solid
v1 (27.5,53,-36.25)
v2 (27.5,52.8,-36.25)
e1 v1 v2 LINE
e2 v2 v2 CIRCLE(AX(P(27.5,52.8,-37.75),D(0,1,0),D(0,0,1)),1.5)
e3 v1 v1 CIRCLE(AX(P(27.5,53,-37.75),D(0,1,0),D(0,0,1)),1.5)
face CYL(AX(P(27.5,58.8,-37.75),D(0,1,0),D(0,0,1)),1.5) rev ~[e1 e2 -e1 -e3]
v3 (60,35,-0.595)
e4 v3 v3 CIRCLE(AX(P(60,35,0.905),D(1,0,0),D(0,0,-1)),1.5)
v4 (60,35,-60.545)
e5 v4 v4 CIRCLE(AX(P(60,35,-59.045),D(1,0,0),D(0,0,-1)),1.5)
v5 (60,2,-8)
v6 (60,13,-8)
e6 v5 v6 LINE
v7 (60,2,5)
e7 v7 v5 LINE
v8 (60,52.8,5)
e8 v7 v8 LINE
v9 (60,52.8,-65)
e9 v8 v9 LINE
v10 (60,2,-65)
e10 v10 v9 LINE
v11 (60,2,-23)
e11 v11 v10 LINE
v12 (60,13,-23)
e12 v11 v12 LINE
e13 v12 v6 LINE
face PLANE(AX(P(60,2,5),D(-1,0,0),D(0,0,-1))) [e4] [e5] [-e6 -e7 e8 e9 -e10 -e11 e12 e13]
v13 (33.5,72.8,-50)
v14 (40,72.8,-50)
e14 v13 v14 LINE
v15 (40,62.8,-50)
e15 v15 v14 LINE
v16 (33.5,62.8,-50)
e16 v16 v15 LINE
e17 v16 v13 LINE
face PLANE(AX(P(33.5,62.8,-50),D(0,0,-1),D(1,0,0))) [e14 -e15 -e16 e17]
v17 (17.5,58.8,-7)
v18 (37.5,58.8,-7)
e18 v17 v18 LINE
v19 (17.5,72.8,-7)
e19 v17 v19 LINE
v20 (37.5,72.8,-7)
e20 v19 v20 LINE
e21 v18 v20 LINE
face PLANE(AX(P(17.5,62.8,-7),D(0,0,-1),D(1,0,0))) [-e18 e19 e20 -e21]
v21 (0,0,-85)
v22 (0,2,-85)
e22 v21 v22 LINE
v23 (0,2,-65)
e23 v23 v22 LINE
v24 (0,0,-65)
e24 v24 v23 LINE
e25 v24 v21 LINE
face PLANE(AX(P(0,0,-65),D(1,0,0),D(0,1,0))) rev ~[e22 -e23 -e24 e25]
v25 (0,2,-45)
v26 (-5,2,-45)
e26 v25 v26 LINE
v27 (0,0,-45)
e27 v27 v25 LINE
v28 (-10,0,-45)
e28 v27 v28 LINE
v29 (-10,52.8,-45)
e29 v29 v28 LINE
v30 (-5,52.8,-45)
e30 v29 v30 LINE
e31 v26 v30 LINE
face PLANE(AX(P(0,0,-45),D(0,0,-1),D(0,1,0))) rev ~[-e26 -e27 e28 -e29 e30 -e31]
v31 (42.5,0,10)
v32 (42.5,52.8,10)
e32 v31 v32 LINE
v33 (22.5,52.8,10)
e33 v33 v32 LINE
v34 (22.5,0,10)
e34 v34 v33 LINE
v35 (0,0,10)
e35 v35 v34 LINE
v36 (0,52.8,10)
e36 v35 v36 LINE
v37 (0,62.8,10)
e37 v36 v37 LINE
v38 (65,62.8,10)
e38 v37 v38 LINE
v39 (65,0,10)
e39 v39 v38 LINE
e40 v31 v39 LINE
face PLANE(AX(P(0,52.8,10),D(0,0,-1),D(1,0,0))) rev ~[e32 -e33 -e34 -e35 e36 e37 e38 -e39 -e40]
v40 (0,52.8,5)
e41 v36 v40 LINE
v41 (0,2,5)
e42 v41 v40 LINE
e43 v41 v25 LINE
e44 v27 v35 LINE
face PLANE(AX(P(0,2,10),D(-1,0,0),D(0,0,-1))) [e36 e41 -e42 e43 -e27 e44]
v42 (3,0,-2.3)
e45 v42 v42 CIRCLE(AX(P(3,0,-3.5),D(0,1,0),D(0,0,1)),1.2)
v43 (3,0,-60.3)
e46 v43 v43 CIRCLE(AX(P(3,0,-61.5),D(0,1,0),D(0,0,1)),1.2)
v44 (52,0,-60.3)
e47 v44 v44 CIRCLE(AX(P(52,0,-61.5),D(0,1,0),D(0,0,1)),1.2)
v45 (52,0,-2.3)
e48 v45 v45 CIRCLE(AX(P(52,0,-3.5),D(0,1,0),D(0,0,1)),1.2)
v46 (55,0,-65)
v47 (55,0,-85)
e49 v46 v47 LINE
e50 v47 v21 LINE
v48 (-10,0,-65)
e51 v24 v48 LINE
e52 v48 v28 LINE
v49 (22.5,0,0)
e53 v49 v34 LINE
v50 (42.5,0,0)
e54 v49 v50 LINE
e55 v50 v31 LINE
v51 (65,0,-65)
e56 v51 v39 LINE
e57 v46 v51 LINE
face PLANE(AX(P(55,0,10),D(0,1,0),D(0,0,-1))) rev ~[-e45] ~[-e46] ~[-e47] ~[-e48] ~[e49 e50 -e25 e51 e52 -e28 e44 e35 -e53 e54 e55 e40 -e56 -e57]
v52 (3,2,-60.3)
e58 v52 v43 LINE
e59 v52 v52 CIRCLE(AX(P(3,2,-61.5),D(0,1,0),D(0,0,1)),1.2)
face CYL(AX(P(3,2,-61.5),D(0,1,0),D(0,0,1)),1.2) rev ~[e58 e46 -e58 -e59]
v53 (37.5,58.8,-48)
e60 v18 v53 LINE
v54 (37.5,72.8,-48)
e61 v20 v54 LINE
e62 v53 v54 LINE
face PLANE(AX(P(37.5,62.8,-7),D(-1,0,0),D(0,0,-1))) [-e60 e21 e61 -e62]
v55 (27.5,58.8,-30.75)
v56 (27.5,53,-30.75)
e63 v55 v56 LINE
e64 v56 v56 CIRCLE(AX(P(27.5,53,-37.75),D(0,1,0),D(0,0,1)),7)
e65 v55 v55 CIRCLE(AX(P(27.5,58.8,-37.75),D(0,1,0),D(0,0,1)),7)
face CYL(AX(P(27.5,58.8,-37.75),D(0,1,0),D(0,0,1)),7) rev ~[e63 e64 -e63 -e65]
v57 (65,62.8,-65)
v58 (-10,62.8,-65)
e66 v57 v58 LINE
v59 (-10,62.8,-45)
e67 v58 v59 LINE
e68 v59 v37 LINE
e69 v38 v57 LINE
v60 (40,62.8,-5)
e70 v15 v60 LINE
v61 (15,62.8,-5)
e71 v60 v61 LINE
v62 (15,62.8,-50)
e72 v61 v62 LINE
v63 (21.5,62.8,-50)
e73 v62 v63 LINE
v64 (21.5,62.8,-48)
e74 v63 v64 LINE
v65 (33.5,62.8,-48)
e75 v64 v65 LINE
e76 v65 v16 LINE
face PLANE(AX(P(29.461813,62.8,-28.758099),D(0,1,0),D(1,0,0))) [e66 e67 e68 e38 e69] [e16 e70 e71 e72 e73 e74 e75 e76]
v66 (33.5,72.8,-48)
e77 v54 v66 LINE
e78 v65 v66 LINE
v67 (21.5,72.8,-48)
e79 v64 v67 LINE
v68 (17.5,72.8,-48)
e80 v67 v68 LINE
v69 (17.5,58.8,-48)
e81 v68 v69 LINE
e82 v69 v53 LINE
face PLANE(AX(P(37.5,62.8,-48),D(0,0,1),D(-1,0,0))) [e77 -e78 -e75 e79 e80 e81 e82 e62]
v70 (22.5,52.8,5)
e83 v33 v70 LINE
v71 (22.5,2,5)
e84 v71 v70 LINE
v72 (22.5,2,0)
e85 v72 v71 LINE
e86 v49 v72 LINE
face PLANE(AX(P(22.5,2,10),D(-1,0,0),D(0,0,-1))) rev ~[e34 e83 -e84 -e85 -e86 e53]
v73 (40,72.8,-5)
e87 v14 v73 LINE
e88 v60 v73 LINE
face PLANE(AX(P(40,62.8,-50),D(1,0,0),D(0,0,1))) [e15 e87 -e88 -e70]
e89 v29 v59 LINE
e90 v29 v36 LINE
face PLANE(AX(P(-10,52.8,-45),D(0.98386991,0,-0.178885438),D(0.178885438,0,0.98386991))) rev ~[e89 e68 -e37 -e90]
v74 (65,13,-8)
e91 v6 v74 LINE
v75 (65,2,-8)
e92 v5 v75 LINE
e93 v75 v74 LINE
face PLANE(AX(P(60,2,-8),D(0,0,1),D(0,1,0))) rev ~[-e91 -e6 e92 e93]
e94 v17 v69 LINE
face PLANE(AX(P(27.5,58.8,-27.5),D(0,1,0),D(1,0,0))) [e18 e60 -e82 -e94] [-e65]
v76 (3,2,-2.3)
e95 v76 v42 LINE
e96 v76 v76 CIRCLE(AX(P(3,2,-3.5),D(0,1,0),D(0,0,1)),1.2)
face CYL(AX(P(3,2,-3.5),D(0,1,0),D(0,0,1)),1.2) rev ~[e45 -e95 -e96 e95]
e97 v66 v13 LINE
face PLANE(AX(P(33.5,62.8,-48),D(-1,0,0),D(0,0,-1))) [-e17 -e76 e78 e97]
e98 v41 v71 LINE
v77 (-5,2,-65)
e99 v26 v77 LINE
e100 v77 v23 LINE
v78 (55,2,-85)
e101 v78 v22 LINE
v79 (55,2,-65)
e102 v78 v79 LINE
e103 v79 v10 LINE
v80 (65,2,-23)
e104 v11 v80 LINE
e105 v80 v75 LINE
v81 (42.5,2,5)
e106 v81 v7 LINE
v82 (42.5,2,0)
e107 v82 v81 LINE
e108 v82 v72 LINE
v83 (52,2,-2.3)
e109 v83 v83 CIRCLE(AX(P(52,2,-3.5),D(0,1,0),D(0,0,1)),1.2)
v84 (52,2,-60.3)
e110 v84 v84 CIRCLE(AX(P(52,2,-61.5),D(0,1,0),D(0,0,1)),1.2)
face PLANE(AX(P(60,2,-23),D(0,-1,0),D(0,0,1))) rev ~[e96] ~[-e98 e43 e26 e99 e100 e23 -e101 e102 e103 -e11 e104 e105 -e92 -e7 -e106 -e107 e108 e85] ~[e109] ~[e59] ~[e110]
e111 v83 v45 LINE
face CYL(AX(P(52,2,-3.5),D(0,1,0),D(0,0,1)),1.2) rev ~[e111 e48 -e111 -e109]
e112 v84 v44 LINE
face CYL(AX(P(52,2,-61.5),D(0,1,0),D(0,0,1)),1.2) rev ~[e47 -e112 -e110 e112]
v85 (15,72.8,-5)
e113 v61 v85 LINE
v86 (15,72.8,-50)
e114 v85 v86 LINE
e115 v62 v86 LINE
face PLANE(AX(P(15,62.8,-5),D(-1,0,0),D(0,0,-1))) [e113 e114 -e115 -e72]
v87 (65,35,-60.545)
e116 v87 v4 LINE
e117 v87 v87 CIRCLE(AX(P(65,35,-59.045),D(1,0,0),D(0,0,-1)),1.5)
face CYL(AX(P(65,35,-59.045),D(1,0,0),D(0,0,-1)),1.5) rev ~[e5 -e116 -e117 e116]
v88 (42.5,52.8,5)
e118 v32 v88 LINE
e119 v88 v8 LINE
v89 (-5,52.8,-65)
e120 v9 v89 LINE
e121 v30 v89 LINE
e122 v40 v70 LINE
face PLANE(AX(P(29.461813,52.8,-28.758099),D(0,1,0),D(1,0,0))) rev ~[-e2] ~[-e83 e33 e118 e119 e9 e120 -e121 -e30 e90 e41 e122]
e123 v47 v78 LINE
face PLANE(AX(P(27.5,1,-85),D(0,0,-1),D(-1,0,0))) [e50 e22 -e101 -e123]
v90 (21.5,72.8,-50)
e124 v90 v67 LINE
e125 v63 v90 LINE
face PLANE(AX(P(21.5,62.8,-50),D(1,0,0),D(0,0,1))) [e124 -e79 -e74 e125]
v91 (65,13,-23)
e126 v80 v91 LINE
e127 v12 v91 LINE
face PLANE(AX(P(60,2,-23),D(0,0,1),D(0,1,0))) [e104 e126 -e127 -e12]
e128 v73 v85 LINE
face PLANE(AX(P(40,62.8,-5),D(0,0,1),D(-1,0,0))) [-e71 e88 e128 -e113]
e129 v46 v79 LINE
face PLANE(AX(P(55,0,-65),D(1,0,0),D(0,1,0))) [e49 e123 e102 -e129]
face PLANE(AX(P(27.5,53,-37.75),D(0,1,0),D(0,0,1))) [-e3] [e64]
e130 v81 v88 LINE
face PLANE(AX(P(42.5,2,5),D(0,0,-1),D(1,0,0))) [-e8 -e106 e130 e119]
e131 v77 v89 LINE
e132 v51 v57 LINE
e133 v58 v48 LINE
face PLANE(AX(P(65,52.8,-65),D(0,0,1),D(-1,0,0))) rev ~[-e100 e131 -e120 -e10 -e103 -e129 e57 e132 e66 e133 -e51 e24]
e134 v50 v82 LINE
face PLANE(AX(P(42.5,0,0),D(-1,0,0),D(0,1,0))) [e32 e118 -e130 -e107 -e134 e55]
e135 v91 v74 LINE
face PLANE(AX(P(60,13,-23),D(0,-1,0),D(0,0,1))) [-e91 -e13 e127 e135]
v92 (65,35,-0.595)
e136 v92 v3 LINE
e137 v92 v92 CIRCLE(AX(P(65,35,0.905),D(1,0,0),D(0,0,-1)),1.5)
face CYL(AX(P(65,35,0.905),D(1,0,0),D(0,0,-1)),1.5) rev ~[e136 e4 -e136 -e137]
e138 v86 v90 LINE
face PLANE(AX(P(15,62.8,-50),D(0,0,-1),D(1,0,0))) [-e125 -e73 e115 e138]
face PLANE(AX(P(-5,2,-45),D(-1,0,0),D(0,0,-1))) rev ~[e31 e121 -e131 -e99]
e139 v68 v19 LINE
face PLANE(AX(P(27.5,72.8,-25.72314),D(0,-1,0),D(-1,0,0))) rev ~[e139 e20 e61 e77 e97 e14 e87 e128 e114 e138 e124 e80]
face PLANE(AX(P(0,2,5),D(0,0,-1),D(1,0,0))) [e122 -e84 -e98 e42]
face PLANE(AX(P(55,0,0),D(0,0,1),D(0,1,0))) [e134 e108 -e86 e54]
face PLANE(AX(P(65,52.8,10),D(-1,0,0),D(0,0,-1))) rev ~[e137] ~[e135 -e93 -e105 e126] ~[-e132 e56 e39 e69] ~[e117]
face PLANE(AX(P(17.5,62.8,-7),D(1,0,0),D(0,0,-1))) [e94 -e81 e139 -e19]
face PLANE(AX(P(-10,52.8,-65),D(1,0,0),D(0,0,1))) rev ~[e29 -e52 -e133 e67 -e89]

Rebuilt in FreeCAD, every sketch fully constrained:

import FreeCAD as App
import Part
import Sketcher

V = App.Vector

doc = App.newDocument("Part")
body = doc.addObject("PartDesign::Body", "Body")

# Sketch on XZ plane
sketch1 = body.newObject("Sketcher::SketchObject", "Sketch")
sketch1.AttachmentSupport = (doc.getObject("XZ_Plane"), [""])
sketch1.MapMode = "FlatFace"
sketch1.addGeometry(Part.LineSegment(V(0, -65, 0), V(0, 0, 0)), False)
sketch1.addGeometry(Part.LineSegment(V(0, 0, 0), V(55, 0, 0)), False)
sketch1.addGeometry(Part.LineSegment(V(55, 0, 0), V(55, -65, 0)), False)
sketch1.addGeometry(Part.LineSegment(V(55, -65, 0), V(0, -65, 0)), False)
sketch1.addConstraint(Sketcher.Constraint("Coincident", 0, 2, 1, 1))
sketch1.addConstraint(Sketcher.Constraint("Coincident", 1, 2, 2, 1))
sketch1.addConstraint(Sketcher.Constraint("Coincident", 2, 2, 3, 1))
sketch1.addConstraint(Sketcher.Constraint("Coincident", 3, 2, 0, 1))
sketch1.addConstraint(Sketcher.Constraint("Vertical", 0))
sketch1.addConstraint(Sketcher.Constraint("Horizontal", 1))
sketch1.addConstraint(Sketcher.Constraint("Vertical", 2))
sketch1.addConstraint(Sketcher.Constraint("Horizontal", 3))
sketch1.addConstraint(Sketcher.Constraint("Coincident", 0, 2, -1, 1))
sketch1.addConstraint(Sketcher.Constraint("DistanceX", 1, 1, 1, 2, 55.0))
sketch1.addConstraint(Sketcher.Constraint("DistanceY", 0, 1, 0, 2, 65.0))
pad1 = body.newObject("PartDesign::Pad", "Pad")
pad1.Profile = sketch1
pad1.Length = 2
pad1.Reversed = True

# Sketch on XZ plane
sketch2 = body.newObject("Sketcher::SketchObject", "Sketch001")
sketch2.AttachmentSupport = (doc.getObject("XZ_Plane"), [""])
sketch2.MapMode = "FlatFace"
sketch2.AttachmentOffset = App.Placement(V(0, 0, -2), App.Rotation())
sketch2.addGeometry(Part.Circle(V(3, -3.5, 0), V(0, 0, 1), 1.2), False)
sketch2.addGeometry(Part.Circle(V(52, -3.5, 0), V(0, 0, 1), 1.2), False)
sketch2.addGeometry(Part.Circle(V(3, -61.5, 0), V(0, 0, 1), 1.2), False)
sketch2.addGeometry(Part.Circle(V(52, -61.5, 0), V(0, 0, 1), 1.2), False)
sketch2.addConstraint(Sketcher.Constraint("Equal", 0, 1))
sketch2.addConstraint(Sketcher.Constraint("Equal", 1, 2))
sketch2.addConstraint(Sketcher.Constraint("Equal", 2, 3))
sketch2.addConstraint(Sketcher.Constraint("Horizontal", 0, 3, 1, 3))
sketch2.addConstraint(Sketcher.Constraint("Horizontal", 2, 3, 3, 3))
sketch2.addConstraint(Sketcher.Constraint("Vertical", 0, 3, 2, 3))
sketch2.addConstraint(Sketcher.Constraint("Vertical", 1, 3, 3, 3))
sketch2.addConstraint(Sketcher.Constraint("Diameter", 0, 2.4))
sketch2.addConstraint(Sketcher.Constraint("DistanceX", -1, 1, 0, 3, 3.0))
sketch2.addConstraint(Sketcher.Constraint("DistanceX", -1, 1, 1, 3, 52.0))
sketch2.addConstraint(Sketcher.Constraint("DistanceY", 2, 3, 0, 3, 58.0))
sketch2.addConstraint(Sketcher.Constraint("DistanceY", 0, 3, -1, 1, 3.5))
pocket1 = body.newObject("PartDesign::Pocket", "Pocket")
pocket1.Profile = sketch2
pocket1.Length = 2
pocket1.Reversed = True

# Sketch on YZ plane
sketch3 = body.newObject("Sketcher::SketchObject", "Sketch002")
sketch3.AttachmentSupport = (doc.getObject("YZ_Plane"), [""])
sketch3.MapMode = "FlatFace"
sketch3.addGeometry(Part.LineSegment(V(2, -65, 0), V(0, -65, 0)), False)
sketch3.addGeometry(Part.LineSegment(V(0, -65, 0), V(0, -45, 0)), False)
sketch3.addGeometry(Part.LineSegment(V(0, -45, 0), V(2, -45, 0)), False)
sketch3.addGeometry(Part.LineSegment(V(2, -45, 0), V(2, -65, 0)), False)
sketch3.addConstraint(Sketcher.Constraint("Coincident", 0, 2, 1, 1))
sketch3.addConstraint(Sketcher.Constraint("Coincident", 1, 2, 2, 1))
sketch3.addConstraint(Sketcher.Constraint("Coincident", 2, 2, 3, 1))
sketch3.addConstraint(Sketcher.Constraint("Coincident", 3, 2, 0, 1))
sketch3.addConstraint(Sketcher.Constraint("Horizontal", 0))
sketch3.addConstraint(Sketcher.Constraint("Vertical", 1))
sketch3.addConstraint(Sketcher.Constraint("Horizontal", 2))
sketch3.addConstraint(Sketcher.Constraint("Vertical", 3))
sketch3.addConstraint(Sketcher.Constraint("PointOnObject", 0, 2, -2))
sketch3.addConstraint(Sketcher.Constraint("DistanceX", 0, 2, 0, 1, 2.0))
sketch3.addConstraint(Sketcher.Constraint("DistanceY", 1, 1, 1, 2, 20.0))
sketch3.addConstraint(Sketcher.Constraint("DistanceY", 0, 2, -1, 1, 65.0))
pad2 = body.newObject("PartDesign::Pad", "Pad001")
pad2.Profile = sketch3
pad2.Length = 10
pad2.Reversed = True

# Sketch on XY plane
sketch4 = body.newObject("Sketcher::SketchObject", "Sketch003")
sketch4.AttachmentSupport = (doc.getObject("XY_Plane"), [""])
sketch4.MapMode = "FlatFace"
sketch4.AttachmentOffset = App.Placement(V(0, 0, -65), App.Rotation())
sketch4.addGeometry(Part.LineSegment(V(55, 2, 0), V(55, 0, 0)), False)
sketch4.addGeometry(Part.LineSegment(V(55, 0, 0), V(0, 0, 0)), False)
sketch4.addGeometry(Part.LineSegment(V(0, 0, 0), V(0, 2, 0)), False)
sketch4.addGeometry(Part.LineSegment(V(0, 2, 0), V(55, 2, 0)), False)
sketch4.addConstraint(Sketcher.Constraint("Coincident", 0, 2, 1, 1))
sketch4.addConstraint(Sketcher.Constraint("Coincident", 1, 2, 2, 1))
sketch4.addConstraint(Sketcher.Constraint("Coincident", 2, 2, 3, 1))
sketch4.addConstraint(Sketcher.Constraint("Coincident", 3, 2, 0, 1))
sketch4.addConstraint(Sketcher.Constraint("Vertical", 0))
sketch4.addConstraint(Sketcher.Constraint("Horizontal", 1))
sketch4.addConstraint(Sketcher.Constraint("Vertical", 2))
sketch4.addConstraint(Sketcher.Constraint("Horizontal", 3))
sketch4.addConstraint(Sketcher.Constraint("Coincident", 1, 2, -1, 1))
sketch4.addConstraint(Sketcher.Constraint("DistanceX", 1, 2, 1, 1, 55.0))
sketch4.addConstraint(Sketcher.Constraint("DistanceY", 0, 2, 0, 1, 2.0))
pad3 = body.newObject("PartDesign::Pad", "Pad002")
pad3.Profile = sketch4
pad3.Length = 20
pad3.Reversed = True

# Sketch on YZ plane
sketch5 = body.newObject("Sketcher::SketchObject", "Sketch004")
sketch5.AttachmentSupport = (doc.getObject("YZ_Plane"), [""])
sketch5.MapMode = "FlatFace"
sketch5.AttachmentOffset = App.Placement(V(0, 0, 55), App.Rotation())
sketch5.addGeometry(Part.LineSegment(V(2, 0, 0), V(0, 0, 0)), False)
sketch5.addGeometry(Part.LineSegment(V(0, 0, 0), V(0, -65, 0)), False)
sketch5.addGeometry(Part.LineSegment(V(0, -65, 0), V(2, -65, 0)), False)
sketch5.addGeometry(Part.LineSegment(V(2, -65, 0), V(2, 0, 0)), False)
sketch5.addConstraint(Sketcher.Constraint("Coincident", 0, 2, 1, 1))
sketch5.addConstraint(Sketcher.Constraint("Coincident", 1, 2, 2, 1))
sketch5.addConstraint(Sketcher.Constraint("Coincident", 2, 2, 3, 1))
sketch5.addConstraint(Sketcher.Constraint("Coincident", 3, 2, 0, 1))
sketch5.addConstraint(Sketcher.Constraint("Horizontal", 0))
sketch5.addConstraint(Sketcher.Constraint("Vertical", 1))
sketch5.addConstraint(Sketcher.Constraint("Horizontal", 2))
sketch5.addConstraint(Sketcher.Constraint("Vertical", 3))
sketch5.addConstraint(Sketcher.Constraint("Coincident", 0, 2, -1, 1))
sketch5.addConstraint(Sketcher.Constraint("DistanceX", 0, 2, 0, 1, 2.0))
sketch5.addConstraint(Sketcher.Constraint("DistanceY", 1, 2, 1, 1, 65.0))
pad4 = body.newObject("PartDesign::Pad", "Pad003")
pad4.Profile = sketch5
pad4.Length = 10

# Sketch on XY plane
sketch6 = body.newObject("Sketcher::SketchObject", "Sketch005")
sketch6.AttachmentSupport = (doc.getObject("XY_Plane"), [""])
sketch6.MapMode = "FlatFace"
sketch6.addGeometry(Part.LineSegment(V(0, 2, 0), V(0, 0, 0)), False)
sketch6.addGeometry(Part.LineSegment(V(0, 0, 0), V(22.5, 0, 0)), False)
sketch6.addGeometry(Part.LineSegment(V(22.5, 0, 0), V(22.5, 2, 0)), False)
sketch6.addGeometry(Part.LineSegment(V(22.5, 2, 0), V(0, 2, 0)), False)
sketch6.addGeometry(Part.LineSegment(V(42.5, 2, 0), V(42.5, 0, 0)), False)
sketch6.addGeometry(Part.LineSegment(V(42.5, 0, 0), V(55, 0, 0)), False)
sketch6.addGeometry(Part.LineSegment(V(55, 0, 0), V(55, 2, 0)), False)
sketch6.addGeometry(Part.LineSegment(V(55, 2, 0), V(42.5, 2, 0)), False)
sketch6.addConstraint(Sketcher.Constraint("Coincident", 0, 2, 1, 1))
sketch6.addConstraint(Sketcher.Constraint("Coincident", 1, 2, 2, 1))
sketch6.addConstraint(Sketcher.Constraint("Coincident", 2, 2, 3, 1))
sketch6.addConstraint(Sketcher.Constraint("Coincident", 3, 2, 0, 1))
sketch6.addConstraint(Sketcher.Constraint("Coincident", 4, 2, 5, 1))
sketch6.addConstraint(Sketcher.Constraint("Coincident", 5, 2, 6, 1))
sketch6.addConstraint(Sketcher.Constraint("Coincident", 6, 2, 7, 1))
sketch6.addConstraint(Sketcher.Constraint("Coincident", 7, 2, 4, 1))
sketch6.addConstraint(Sketcher.Constraint("Vertical", 0))
sketch6.addConstraint(Sketcher.Constraint("Horizontal", 1))
sketch6.addConstraint(Sketcher.Constraint("Vertical", 2))
sketch6.addConstraint(Sketcher.Constraint("Horizontal", 3))
sketch6.addConstraint(Sketcher.Constraint("Vertical", 4))
sketch6.addConstraint(Sketcher.Constraint("Horizontal", 5))
sketch6.addConstraint(Sketcher.Constraint("Vertical", 6))
sketch6.addConstraint(Sketcher.Constraint("Horizontal", 7))
sketch6.addConstraint(Sketcher.Constraint("Coincident", 0, 2, -1, 1))
sketch6.addConstraint(Sketcher.Constraint("PointOnObject", 4, 2, -1))
sketch6.addConstraint(Sketcher.Constraint("Horizontal", 3, 2, 6, 2))
sketch6.addConstraint(Sketcher.Constraint("DistanceY", 0, 2, 0, 1, 2.0))
sketch6.addConstraint(Sketcher.Constraint("DistanceX", 1, 1, 1, 2, 22.5))
sketch6.addConstraint(Sketcher.Constraint("DistanceX", 5, 1, 5, 2, 12.5))
sketch6.addConstraint(Sketcher.Constraint("DistanceX", -1, 1, 5, 2, 55.0))
pad5 = body.newObject("PartDesign::Pad", "Pad004")
pad5.Profile = sketch6
pad5.Length = 10

# Sketch on YZ plane
sketch7 = body.newObject("Sketcher::SketchObject", "Sketch006")
sketch7.AttachmentSupport = (doc.getObject("YZ_Plane"), [""])
sketch7.MapMode = "FlatFace"
sketch7.AttachmentOffset = App.Placement(V(0, 0, 55), App.Rotation())
sketch7.addGeometry(Part.LineSegment(V(2, 10, 0), V(0, 10, 0)), False)
sketch7.addGeometry(Part.LineSegment(V(0, 10, 0), V(0, 0, 0)), False)
sketch7.addGeometry(Part.LineSegment(V(0, 0, 0), V(2, 0, 0)), False)
sketch7.addGeometry(Part.LineSegment(V(2, 0, 0), V(2, 10, 0)), False)
sketch7.addConstraint(Sketcher.Constraint("Coincident", 0, 2, 1, 1))
sketch7.addConstraint(Sketcher.Constraint("Coincident", 1, 2, 2, 1))
sketch7.addConstraint(Sketcher.Constraint("Coincident", 2, 2, 3, 1))
sketch7.addConstraint(Sketcher.Constraint("Coincident", 3, 2, 0, 1))
sketch7.addConstraint(Sketcher.Constraint("Horizontal", 0))
sketch7.addConstraint(Sketcher.Constraint("Vertical", 1))
sketch7.addConstraint(Sketcher.Constraint("Horizontal", 2))
sketch7.addConstraint(Sketcher.Constraint("Vertical", 3))
sketch7.addConstraint(Sketcher.Constraint("Coincident", 1, 2, -1, 1))
sketch7.addConstraint(Sketcher.Constraint("DistanceX", 0, 2, 0, 1, 2.0))
sketch7.addConstraint(Sketcher.Constraint("DistanceY", 1, 2, 1, 1, 10.0))
pad6 = body.newObject("PartDesign::Pad", "Pad005")
pad6.Profile = sketch7
pad6.Length = 10

# Sketch on XZ plane
sketch8 = body.newObject("Sketcher::SketchObject", "Sketch007")
sketch8.AttachmentSupport = (doc.getObject("XZ_Plane"), [""])
sketch8.MapMode = "FlatFace"
sketch8.AttachmentOffset = App.Placement(V(0, 0, -2), App.Rotation())
sketch8.addGeometry(Part.LineSegment(V(0, 5, 0), V(0, 10, 0)), False)
sketch8.addGeometry(Part.LineSegment(V(0, 10, 0), V(22, 10, 0)), False)
sketch8.addGeometry(Part.LineSegment(V(22, 10, 0), V(22, 5, 0)), False)
sketch8.addGeometry(Part.LineSegment(V(22, 5, 0), V(0, 5, 0)), False)
sketch8.addGeometry(Part.LineSegment(V(-10, -65, 0), V(-10, -45, 0)), False)
sketch8.addGeometry(Part.LineSegment(V(-10, -45, 0), V(-5, -45, 0)), False)
sketch8.addGeometry(Part.LineSegment(V(-5, -45, 0), V(-5, -65, 0)), False)
sketch8.addGeometry(Part.LineSegment(V(-5, -65, 0), V(-10, -65, 0)), False)
sketch8.addGeometry(Part.LineSegment(V(65, -65, 0), V(60, -65, 0)), False)
sketch8.addGeometry(Part.LineSegment(V(60, -65, 0), V(60, 5, 0)), False)
sketch8.addGeometry(Part.LineSegment(V(60, 5, 0), V(42, 5, 0)), False)
sketch8.addGeometry(Part.LineSegment(V(42, 5, 0), V(42, 10, 0)), False)
sketch8.addGeometry(Part.LineSegment(V(42, 10, 0), V(65, 10, 0)), False)
sketch8.addGeometry(Part.LineSegment(V(65, 10, 0), V(65, -65, 0)), False)
sketch8.addConstraint(Sketcher.Constraint("Coincident", 0, 2, 1, 1))
sketch8.addConstraint(Sketcher.Constraint("Coincident", 1, 2, 2, 1))
sketch8.addConstraint(Sketcher.Constraint("Coincident", 2, 2, 3, 1))
sketch8.addConstraint(Sketcher.Constraint("Coincident", 3, 2, 0, 1))
sketch8.addConstraint(Sketcher.Constraint("Coincident", 4, 2, 5, 1))
sketch8.addConstraint(Sketcher.Constraint("Coincident", 5, 2, 6, 1))
sketch8.addConstraint(Sketcher.Constraint("Coincident", 6, 2, 7, 1))
sketch8.addConstraint(Sketcher.Constraint("Coincident", 7, 2, 4, 1))
sketch8.addConstraint(Sketcher.Constraint("Coincident", 8, 2, 9, 1))
sketch8.addConstraint(Sketcher.Constraint("Coincident", 9, 2, 10, 1))
sketch8.addConstraint(Sketcher.Constraint("Coincident", 10, 2, 11, 1))
sketch8.addConstraint(Sketcher.Constraint("Coincident", 11, 2, 12, 1))
sketch8.addConstraint(Sketcher.Constraint("Coincident", 12, 2, 13, 1))
sketch8.addConstraint(Sketcher.Constraint("Coincident", 13, 2, 8, 1))
sketch8.addConstraint(Sketcher.Constraint("Vertical", 0))
sketch8.addConstraint(Sketcher.Constraint("Horizontal", 1))
sketch8.addConstraint(Sketcher.Constraint("Vertical", 2))
sketch8.addConstraint(Sketcher.Constraint("Horizontal", 3))
sketch8.addConstraint(Sketcher.Constraint("Vertical", 4))
sketch8.addConstraint(Sketcher.Constraint("Horizontal", 5))
sketch8.addConstraint(Sketcher.Constraint("Vertical", 6))
sketch8.addConstraint(Sketcher.Constraint("Horizontal", 7))
sketch8.addConstraint(Sketcher.Constraint("Horizontal", 8))
sketch8.addConstraint(Sketcher.Constraint("Vertical", 9))
sketch8.addConstraint(Sketcher.Constraint("Horizontal", 10))
sketch8.addConstraint(Sketcher.Constraint("Vertical", 11))
sketch8.addConstraint(Sketcher.Constraint("Horizontal", 12))
sketch8.addConstraint(Sketcher.Constraint("Vertical", 13))
sketch8.addConstraint(Sketcher.Constraint("PointOnObject", 0, 2, -2))
sketch8.addConstraint(Sketcher.Constraint("Horizontal", 7, 2, 8, 2))
sketch8.addConstraint(Sketcher.Constraint("Horizontal", 3, 2, 9, 2))
sketch8.addConstraint(Sketcher.Constraint("Horizontal", 1, 2, 11, 2))
sketch8.addConstraint(Sketcher.Constraint("Equal", 7, 8))
sketch8.addConstraint(Sketcher.Constraint("Equal", 3, 12))
sketch8.addConstraint(Sketcher.Constraint("Equal", 8, 0))
sketch8.addConstraint(Sketcher.Constraint("DistanceX", 5, 1, 5, 2, 5.0))
sketch8.addConstraint(Sketcher.Constraint("DistanceY", 4, 1, 4, 2, 20.0))
sketch8.addConstraint(Sketcher.Constraint("DistanceY", 9, 1, 9, 2, 70.0))
sketch8.addConstraint(Sketcher.Constraint("DistanceX", 1, 1, 1, 2, 22.5))
sketch8.addConstraint(Sketcher.Constraint("DistanceY", -1, 1, 0, 2, 10.0))
sketch8.addConstraint(Sketcher.Constraint("DistanceX", 4, 2, -1, 1, 10.0))
sketch8.addConstraint(Sketcher.Constraint("DistanceX", -1, 1, 8, 2, 60.0))
pad7 = body.newObject("PartDesign::Pad", "Pad006")
pad7.Profile = sketch8
pad7.Length = 50.8
pad7.Reversed = True

# Sketch on YZ plane
sketch9 = body.newObject("Sketcher::SketchObject", "Sketch008")
sketch9.AttachmentSupport = (doc.getObject("YZ_Plane"), [""])
sketch9.MapMode = "FlatFace"
sketch9.AttachmentOffset = App.Placement(V(0, 0, 65), App.Rotation())
sketch9.addGeometry(Part.Circle(V(35, -59, 0), V(0, 0, 1), 1.5), False)
sketch9.addGeometry(Part.Circle(V(35, 0.9, 0), V(0, 0, 1), 1.5), False)
sketch9.addConstraint(Sketcher.Constraint("Equal", 0, 1))
sketch9.addConstraint(Sketcher.Constraint("Vertical", 0, 3, 1, 3))
sketch9.addConstraint(Sketcher.Constraint("Diameter", 0, 3.0))
sketch9.addConstraint(Sketcher.Constraint("DistanceX", -1, 1, 0, 3, 35.0))
sketch9.addConstraint(Sketcher.Constraint("DistanceY", 0, 3, 1, 3, 59.95))
sketch9.addConstraint(Sketcher.Constraint("DistanceY", 0, 3, -1, 1, 59.045))
pocket2 = body.newObject("PartDesign::Pocket", "Pocket001")
pocket2.Profile = sketch9
pocket2.Length = 5

# Sketch on XZ plane
sketch10 = body.newObject("Sketcher::SketchObject", "Sketch009")
sketch10.AttachmentSupport = (doc.getObject("XZ_Plane"), [""])
sketch10.MapMode = "FlatFace"
sketch10.AttachmentOffset = App.Placement(V(0, 0, -52.8), App.Rotation())
sketch10.addGeometry(Part.LineSegment(V(0, 10, 0), V(65, 10, 0)), False)
sketch10.addGeometry(Part.LineSegment(V(65, 10, 0), V(65, -65, 0)), False)
sketch10.addGeometry(Part.LineSegment(V(65, -65, 0), V(-10, -65, 0)), False)
sketch10.addGeometry(Part.LineSegment(V(-10, -65, 0), V(-10, -45, 0)), False)
sketch10.addGeometry(Part.LineSegment(V(-10, -45, 0), V(0, 10, 0)), False)
sketch10.addConstraint(Sketcher.Constraint("Coincident", 0, 2, 1, 1))
sketch10.addConstraint(Sketcher.Constraint("Coincident", 1, 2, 2, 1))
sketch10.addConstraint(Sketcher.Constraint("Coincident", 2, 2, 3, 1))
sketch10.addConstraint(Sketcher.Constraint("Coincident", 3, 2, 4, 1))
sketch10.addConstraint(Sketcher.Constraint("Coincident", 4, 2, 0, 1))
sketch10.addConstraint(Sketcher.Constraint("Horizontal", 0))
sketch10.addConstraint(Sketcher.Constraint("Vertical", 1))
sketch10.addConstraint(Sketcher.Constraint("Horizontal", 2))
sketch10.addConstraint(Sketcher.Constraint("Vertical", 3))
sketch10.addConstraint(Sketcher.Constraint("PointOnObject", 4, 2, -2))
sketch10.addConstraint(Sketcher.Constraint("Equal", 2, 1))
sketch10.addConstraint(Sketcher.Constraint("DistanceX", 0, 1, 0, 2, 65.0))
sketch10.addConstraint(Sketcher.Constraint("DistanceX", 2, 2, 2, 1, 75.0))
sketch10.addConstraint(Sketcher.Constraint("DistanceY", 3, 1, 3, 2, 20.0))
sketch10.addConstraint(Sketcher.Constraint("DistanceY", -1, 1, 0, 2, 10.0))
pad8 = body.newObject("PartDesign::Pad", "Pad007")
pad8.Profile = sketch10
pad8.Length = 10
pad8.Reversed = True

# Sketch on XZ plane
sketch11 = body.newObject("Sketcher::SketchObject", "Sketch010")
sketch11.AttachmentSupport = (doc.getObject("XZ_Plane"), [""])
sketch11.MapMode = "FlatFace"
sketch11.AttachmentOffset = App.Placement(V(0, 0, -62.8), App.Rotation())
sketch11.addGeometry(Part.LineSegment(V(18, -48, 0), V(18, -7, 0)), False)
sketch11.addGeometry(Part.LineSegment(V(18, -7, 0), V(38, -7, 0)), False)
sketch11.addGeometry(Part.LineSegment(V(38, -7, 0), V(38, -48, 0)), False)
sketch11.addGeometry(Part.LineSegment(V(38, -48, 0), V(18, -48, 0)), False)
sketch11.addConstraint(Sketcher.Constraint("Coincident", 0, 2, 1, 1))
sketch11.addConstraint(Sketcher.Constraint("Coincident", 1, 2, 2, 1))
sketch11.addConstraint(Sketcher.Constraint("Coincident", 2, 2, 3, 1))
sketch11.addConstraint(Sketcher.Constraint("Coincident", 3, 2, 0, 1))
sketch11.addConstraint(Sketcher.Constraint("Vertical", 0))
sketch11.addConstraint(Sketcher.Constraint("Horizontal", 1))
sketch11.addConstraint(Sketcher.Constraint("Vertical", 2))
sketch11.addConstraint(Sketcher.Constraint("Horizontal", 3))
sketch11.addConstraint(Sketcher.Constraint("DistanceX", 1, 1, 1, 2, 20.0))
sketch11.addConstraint(Sketcher.Constraint("DistanceY", 0, 1, 0, 2, 41.0))
sketch11.addConstraint(Sketcher.Constraint("DistanceY", 0, 2, -1, 1, 7.0))
sketch11.addConstraint(Sketcher.Constraint("DistanceX", -1, 1, 0, 2, 17.5))
pocket3 = body.newObject("PartDesign::Pocket", "Pocket002")
pocket3.Profile = sketch11
pocket3.Length = 4
pocket3.Reversed = True

# Sketch on XZ plane
sketch12 = body.newObject("Sketcher::SketchObject", "Sketch011")
sketch12.AttachmentSupport = (doc.getObject("XZ_Plane"), [""])
sketch12.MapMode = "FlatFace"
sketch12.AttachmentOffset = App.Placement(V(0, 0, -58.8), App.Rotation())
sketch12.addGeometry(Part.Circle(V(27.5, -37.8, 0), V(0, 0, 1), 1.5), False)
sketch12.addConstraint(Sketcher.Constraint("Diameter", 0, 3.0))
sketch12.addConstraint(Sketcher.Constraint("DistanceX", -1, 1, 0, 3, 27.5))
sketch12.addConstraint(Sketcher.Constraint("DistanceY", 0, 3, -1, 1, 37.75))
pocket4 = body.newObject("PartDesign::Pocket", "Pocket003")
pocket4.Profile = sketch12
pocket4.Length = 6
pocket4.Reversed = True

# Sketch on XZ plane
sketch13 = body.newObject("Sketcher::SketchObject", "Sketch012")
sketch13.AttachmentSupport = (doc.getObject("XZ_Plane"), [""])
sketch13.MapMode = "FlatFace"
sketch13.AttachmentOffset = App.Placement(V(0, 0, -58.8), App.Rotation())
sketch13.addGeometry(Part.Circle(V(28, -38, 0), V(0, 0, 1), 7), False)
sketch13.addConstraint(Sketcher.Constraint("Diameter", 0, 14.0))
sketch13.addConstraint(Sketcher.Constraint("DistanceX", -1, 1, 0, 3, 27.5))
sketch13.addConstraint(Sketcher.Constraint("DistanceY", 0, 3, -1, 1, 37.75))
pocket5 = body.newObject("PartDesign::Pocket", "Pocket004")
pocket5.Profile = sketch13
pocket5.Length = 5.8
pocket5.Reversed = True

# Sketch on XZ plane
sketch14 = body.newObject("Sketcher::SketchObject", "Sketch013")
sketch14.AttachmentSupport = (doc.getObject("XZ_Plane"), [""])
sketch14.MapMode = "FlatFace"
sketch14.AttachmentOffset = App.Placement(V(0, 0, -62.8), App.Rotation())
sketch14.addGeometry(Part.LineSegment(V(33.5, -48, 0), V(37.5, -48, 0)), False)
sketch14.addGeometry(Part.LineSegment(V(37.5, -48, 0), V(37.5, -7, 0)), False)
sketch14.addGeometry(Part.LineSegment(V(37.5, -7, 0), V(17.5, -7, 0)), False)
sketch14.addGeometry(Part.LineSegment(V(17.5, -7, 0), V(17.5, -48, 0)), False)
sketch14.addGeometry(Part.LineSegment(V(17.5, -48, 0), V(21.5, -48, 0)), False)
sketch14.addGeometry(Part.LineSegment(V(21.5, -48, 0), V(21.5, -50, 0)), False)
sketch14.addGeometry(Part.LineSegment(V(21.5, -50, 0), V(15, -50, 0)), False)
sketch14.addGeometry(Part.LineSegment(V(15, -50, 0), V(15, -5, 0)), False)
sketch14.addGeometry(Part.LineSegment(V(15, -5, 0), V(40, -5, 0)), False)
sketch14.addGeometry(Part.LineSegment(V(40, -5, 0), V(40, -50, 0)), False)
sketch14.addGeometry(Part.LineSegment(V(40, -50, 0), V(33.5, -50, 0)), False)
sketch14.addGeometry(Part.LineSegment(V(33.5, -50, 0), V(33.5, -48, 0)), False)
sketch14.addConstraint(Sketcher.Constraint("Coincident", 0, 2, 1, 1))
sketch14.addConstraint(Sketcher.Constraint("Coincident", 1, 2, 2, 1))
sketch14.addConstraint(Sketcher.Constraint("Coincident", 2, 2, 3, 1))
sketch14.addConstraint(Sketcher.Constraint("Coincident", 3, 2, 4, 1))
sketch14.addConstraint(Sketcher.Constraint("Coincident", 4, 2, 5, 1))
sketch14.addConstraint(Sketcher.Constraint("Coincident", 5, 2, 6, 1))
sketch14.addConstraint(Sketcher.Constraint("Coincident", 6, 2, 7, 1))
sketch14.addConstraint(Sketcher.Constraint("Coincident", 7, 2, 8, 1))
sketch14.addConstraint(Sketcher.Constraint("Coincident", 8, 2, 9, 1))
sketch14.addConstraint(Sketcher.Constraint("Coincident", 9, 2, 10, 1))
sketch14.addConstraint(Sketcher.Constraint("Coincident", 10, 2, 11, 1))
sketch14.addConstraint(Sketcher.Constraint("Coincident", 11, 2, 0, 1))
sketch14.addConstraint(Sketcher.Constraint("Horizontal", 0))
sketch14.addConstraint(Sketcher.Constraint("Vertical", 1))
sketch14.addConstraint(Sketcher.Constraint("Horizontal", 2))
sketch14.addConstraint(Sketcher.Constraint("Vertical", 3))
sketch14.addConstraint(Sketcher.Constraint("Horizontal", 4))
sketch14.addConstraint(Sketcher.Constraint("Vertical", 5))
sketch14.addConstraint(Sketcher.Constraint("Horizontal", 6))
sketch14.addConstraint(Sketcher.Constraint("Vertical", 7))
sketch14.addConstraint(Sketcher.Constraint("Horizontal", 8))
sketch14.addConstraint(Sketcher.Constraint("Vertical", 9))
sketch14.addConstraint(Sketcher.Constraint("Horizontal", 10))
sketch14.addConstraint(Sketcher.Constraint("Vertical", 11))
sketch14.addConstraint(Sketcher.Constraint("Horizontal", 0, 2, 3, 2))
sketch14.addConstraint(Sketcher.Constraint("Horizontal", 6, 2, 9, 2))
sketch14.addConstraint(Sketcher.Constraint("Equal", 0, 4))
sketch14.addConstraint(Sketcher.Constraint("Equal", 6, 10))
sketch14.addConstraint(Sketcher.Constraint("DistanceX", 0, 1, 0, 2, 4.0))
sketch14.addConstraint(Sketcher.Constraint("DistanceX", 2, 2, 2, 1, 20.0))
sketch14.addConstraint(Sketcher.Constraint("DistanceX", 8, 1, 8, 2, 25.0))
sketch14.addConstraint(Sketcher.Constraint("DistanceY", 1, 1, 1, 2, 41.0))
sketch14.addConstraint(Sketcher.Constraint("DistanceY", 5, 2, 5, 1, 2.0))
sketch14.addConstraint(Sketcher.Constraint("DistanceY", 7, 1, 7, 2, 45.0))
sketch14.addConstraint(Sketcher.Constraint("DistanceY", 0, 2, -1, 1, 48.0))
sketch14.addConstraint(Sketcher.Constraint("DistanceX", -1, 1, 6, 2, 15.0))
pad9 = body.newObject("PartDesign::Pad", "Pad008")
pad9.Profile = sketch14
pad9.Length = 10
pad9.Reversed = True

# Sketch on YZ plane
sketch15 = body.newObject("Sketcher::SketchObject", "Sketch014")
sketch15.AttachmentSupport = (doc.getObject("YZ_Plane"), [""])
sketch15.MapMode = "FlatFace"
sketch15.AttachmentOffset = App.Placement(V(0, 0, 60), App.Rotation())
sketch15.addGeometry(Part.LineSegment(V(13, -23, 0), V(2, -23, 0)), False)
sketch15.addGeometry(Part.LineSegment(V(2, -23, 0), V(2, -8, 0)), False)
sketch15.addGeometry(Part.LineSegment(V(2, -8, 0), V(13, -8, 0)), False)
sketch15.addGeometry(Part.LineSegment(V(13, -8, 0), V(13, -23, 0)), False)
sketch15.addConstraint(Sketcher.Constraint("Coincident", 0, 2, 1, 1))
sketch15.addConstraint(Sketcher.Constraint("Coincident", 1, 2, 2, 1))
sketch15.addConstraint(Sketcher.Constraint("Coincident", 2, 2, 3, 1))
sketch15.addConstraint(Sketcher.Constraint("Coincident", 3, 2, 0, 1))
sketch15.addConstraint(Sketcher.Constraint("Horizontal", 0))
sketch15.addConstraint(Sketcher.Constraint("Vertical", 1))
sketch15.addConstraint(Sketcher.Constraint("Horizontal", 2))
sketch15.addConstraint(Sketcher.Constraint("Vertical", 3))
sketch15.addConstraint(Sketcher.Constraint("DistanceX", 0, 2, 0, 1, 11.0))
sketch15.addConstraint(Sketcher.Constraint("DistanceY", 1, 1, 1, 2, 15.0))
sketch15.addConstraint(Sketcher.Constraint("DistanceX", -1, 1, 0, 2, 2.0))
sketch15.addConstraint(Sketcher.Constraint("DistanceY", 0, 2, -1, 1, 23.0))
pocket6 = body.newObject("PartDesign::Pocket", "Pocket005")
pocket6.Profile = sketch15
pocket6.Length = 5
pocket6.Reversed = True

doc.recompute()
